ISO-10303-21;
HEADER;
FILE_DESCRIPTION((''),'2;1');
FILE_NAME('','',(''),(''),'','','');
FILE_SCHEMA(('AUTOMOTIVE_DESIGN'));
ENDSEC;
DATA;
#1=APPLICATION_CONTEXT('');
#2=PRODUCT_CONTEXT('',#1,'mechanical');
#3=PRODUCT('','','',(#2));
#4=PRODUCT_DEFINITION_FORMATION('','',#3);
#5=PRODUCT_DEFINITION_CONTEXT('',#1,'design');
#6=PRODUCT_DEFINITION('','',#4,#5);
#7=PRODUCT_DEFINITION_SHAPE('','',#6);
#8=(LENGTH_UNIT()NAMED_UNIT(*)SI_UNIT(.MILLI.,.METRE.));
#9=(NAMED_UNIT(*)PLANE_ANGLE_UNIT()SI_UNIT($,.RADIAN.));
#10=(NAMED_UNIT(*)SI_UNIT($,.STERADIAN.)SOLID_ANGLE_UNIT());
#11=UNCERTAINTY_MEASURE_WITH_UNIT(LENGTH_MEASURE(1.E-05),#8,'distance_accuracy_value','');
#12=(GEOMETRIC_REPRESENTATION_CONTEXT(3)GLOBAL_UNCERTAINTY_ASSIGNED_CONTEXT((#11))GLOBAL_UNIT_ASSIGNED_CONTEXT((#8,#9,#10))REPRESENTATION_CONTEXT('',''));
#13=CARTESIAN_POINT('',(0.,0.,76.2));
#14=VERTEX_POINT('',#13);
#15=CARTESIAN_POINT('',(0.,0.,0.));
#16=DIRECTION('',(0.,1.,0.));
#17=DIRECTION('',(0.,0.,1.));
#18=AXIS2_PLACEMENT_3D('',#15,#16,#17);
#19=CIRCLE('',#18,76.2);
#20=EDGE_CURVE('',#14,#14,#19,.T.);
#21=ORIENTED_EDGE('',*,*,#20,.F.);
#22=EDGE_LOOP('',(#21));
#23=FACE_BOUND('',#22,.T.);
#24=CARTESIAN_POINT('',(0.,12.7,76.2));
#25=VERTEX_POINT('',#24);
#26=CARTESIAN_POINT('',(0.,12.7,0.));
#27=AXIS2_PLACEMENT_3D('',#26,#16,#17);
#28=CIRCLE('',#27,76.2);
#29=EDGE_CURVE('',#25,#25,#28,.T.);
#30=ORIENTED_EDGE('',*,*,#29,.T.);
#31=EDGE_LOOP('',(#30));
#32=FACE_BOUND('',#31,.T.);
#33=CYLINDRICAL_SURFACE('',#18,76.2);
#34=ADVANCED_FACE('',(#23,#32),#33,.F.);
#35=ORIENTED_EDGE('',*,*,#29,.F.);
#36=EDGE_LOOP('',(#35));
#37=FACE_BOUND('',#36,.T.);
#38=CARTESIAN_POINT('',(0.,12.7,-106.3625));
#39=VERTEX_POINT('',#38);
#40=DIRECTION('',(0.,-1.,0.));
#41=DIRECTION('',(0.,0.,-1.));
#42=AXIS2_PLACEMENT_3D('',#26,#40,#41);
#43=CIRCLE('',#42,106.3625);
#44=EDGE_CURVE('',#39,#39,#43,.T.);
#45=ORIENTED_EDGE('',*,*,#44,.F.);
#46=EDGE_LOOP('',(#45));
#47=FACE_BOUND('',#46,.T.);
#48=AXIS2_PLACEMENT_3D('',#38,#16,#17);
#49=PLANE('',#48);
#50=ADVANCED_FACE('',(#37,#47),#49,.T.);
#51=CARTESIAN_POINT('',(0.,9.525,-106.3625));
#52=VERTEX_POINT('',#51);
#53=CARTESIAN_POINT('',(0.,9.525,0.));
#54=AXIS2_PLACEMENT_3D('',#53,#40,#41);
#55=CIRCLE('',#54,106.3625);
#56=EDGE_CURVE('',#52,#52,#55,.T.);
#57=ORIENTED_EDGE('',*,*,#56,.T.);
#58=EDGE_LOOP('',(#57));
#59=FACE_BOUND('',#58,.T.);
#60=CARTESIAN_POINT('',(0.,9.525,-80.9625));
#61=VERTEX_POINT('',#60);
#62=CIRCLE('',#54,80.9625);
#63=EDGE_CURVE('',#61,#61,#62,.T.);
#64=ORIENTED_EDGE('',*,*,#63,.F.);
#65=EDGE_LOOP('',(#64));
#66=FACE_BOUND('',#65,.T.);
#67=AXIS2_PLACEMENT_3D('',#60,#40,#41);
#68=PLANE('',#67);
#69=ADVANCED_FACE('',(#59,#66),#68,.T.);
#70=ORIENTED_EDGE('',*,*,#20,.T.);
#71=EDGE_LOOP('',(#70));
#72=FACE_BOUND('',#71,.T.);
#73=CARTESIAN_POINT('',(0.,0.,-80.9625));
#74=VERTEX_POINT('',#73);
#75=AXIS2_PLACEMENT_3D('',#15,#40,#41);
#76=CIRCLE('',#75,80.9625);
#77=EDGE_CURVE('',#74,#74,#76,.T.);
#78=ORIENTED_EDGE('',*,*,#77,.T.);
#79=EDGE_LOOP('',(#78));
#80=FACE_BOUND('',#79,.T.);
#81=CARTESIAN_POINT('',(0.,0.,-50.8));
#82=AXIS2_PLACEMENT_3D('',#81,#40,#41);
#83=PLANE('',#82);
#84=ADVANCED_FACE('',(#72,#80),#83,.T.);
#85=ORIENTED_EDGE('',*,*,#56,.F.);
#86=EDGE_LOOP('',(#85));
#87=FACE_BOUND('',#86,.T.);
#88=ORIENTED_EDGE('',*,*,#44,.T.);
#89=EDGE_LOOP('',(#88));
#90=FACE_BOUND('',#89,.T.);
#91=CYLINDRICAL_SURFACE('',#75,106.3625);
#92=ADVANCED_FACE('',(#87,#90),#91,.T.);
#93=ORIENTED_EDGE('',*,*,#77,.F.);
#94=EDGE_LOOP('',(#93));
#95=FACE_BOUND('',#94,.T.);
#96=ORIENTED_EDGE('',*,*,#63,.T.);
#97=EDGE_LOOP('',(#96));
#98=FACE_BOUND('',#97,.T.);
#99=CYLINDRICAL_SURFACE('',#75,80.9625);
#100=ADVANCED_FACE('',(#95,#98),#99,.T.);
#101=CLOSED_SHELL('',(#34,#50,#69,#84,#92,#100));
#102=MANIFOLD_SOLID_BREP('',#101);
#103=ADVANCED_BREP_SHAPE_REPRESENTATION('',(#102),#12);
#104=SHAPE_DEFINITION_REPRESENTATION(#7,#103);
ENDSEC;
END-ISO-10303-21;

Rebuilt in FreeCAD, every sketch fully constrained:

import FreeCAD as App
import Part
import Sketcher
Q = App.Units.Quantity


def add_polygon(sketch, points):
    """Adds a closed chain of lines whose ends are joined by coincident constraints."""
    first, n = sketch.GeometryCount, len(points)
    for a, b in zip(points, points[1:] + points[:1]):
        sketch.addGeometry(Part.LineSegment(App.Vector(*a, 0), App.Vector(*b, 0)), False)
    for i in range(n):
        sketch.addConstraint(Sketcher.Constraint("Coincident", first + i, 2, first + (i + 1) % n, 1))

doc = App.newDocument("Part")
body = doc.addObject("PartDesign::Body", "Body")

sketch1 = doc.addObject("Sketcher::SketchObject", "Sketch")
body.addObject(sketch1)
sketch1.AttachmentSupport = (doc.YZ_Plane, [""])
sketch1.MapMode = "FlatFace"
add_polygon(sketch1, [(0, -50.8), (0, -80.9625), (9.525, -80.9625), (9.525, -106.3625), (12.7, -106.3625), (12.7, 0), (9.525, 0), (9.525, -50.8)])
sketch1.addConstraint(Sketcher.Constraint("Vertical", 0))
sketch1.addConstraint(Sketcher.Constraint("Horizontal", 1))
sketch1.addConstraint(Sketcher.Constraint("Vertical", 2))
sketch1.addConstraint(Sketcher.Constraint("Horizontal", 3))
sketch1.addConstraint(Sketcher.Constraint("Vertical", 4))
sketch1.addConstraint(Sketcher.Constraint("Horizontal", 5))
sketch1.addConstraint(Sketcher.Constraint("Vertical", 6))
sketch1.addConstraint(Sketcher.Constraint("Horizontal", 7))
sketch1.addConstraint(Sketcher.Constraint("PointOnObject", 0, 2, -2))
sketch1.addConstraint(Sketcher.Constraint("PointOnObject", 4, 2, -1))
sketch1.addConstraint(Sketcher.Constraint("Vertical", 2, 2, 5, 2))
sketch1.addConstraint(Sketcher.Constraint("DistanceY", 2, 2, 2, 1, Q("1 in")))
sketch1.addConstraint(Sketcher.Constraint("DistanceY", 6, 2, 6, 1, Q("2 in")))
sketch1.addConstraint(Sketcher.Constraint("DistanceX", -1, 1, 3, 2, Q("0.5 in")))
sketch1.addConstraint(Sketcher.Constraint("DistanceX", 1, 1, 1, 2, Q("0.375 in")))
sketch1.addConstraint(Sketcher.Constraint("DistanceY", 0, 2, 0, 1, Q("1.1875 in")))
revolution = doc.addObject("PartDesign::Revolution", "Revolution")
body.addObject(revolution)
revolution.Profile = sketch1
revolution.ReferenceAxis = (sketch1, ["H_Axis"])
revolution.Angle = 360

sketch2 = doc.addObject("Sketcher::SketchObject", "Sketch001")
body.addObject(sketch2)
sketch2.AttachmentSupport = (doc.XZ_Plane, [""])
sketch2.MapMode = "FlatFace"
sketch2.AttachmentOffset = App.Placement(App.Vector(0, 0, -0.5 * 25.4), App.Rotation())
sketch2.addGeometry(Part.Circle(App.Vector(0, 0, 0), App.Vector(0, 0, 1), 76.2), False)
sketch2.addConstraint(Sketcher.Constraint("Coincident", 0, 3, -1, 1))
sketch2.addConstraint(Sketcher.Constraint("Diameter", 0, Q("6 in")))
pocket1 = doc.addObject("PartDesign::Pocket", "Pocket")
body.addObject(pocket1)
pocket1.Profile = sketch2
pocket1.Type = "ThroughAll"
pocket1.Reversed = True

doc.recompute()
